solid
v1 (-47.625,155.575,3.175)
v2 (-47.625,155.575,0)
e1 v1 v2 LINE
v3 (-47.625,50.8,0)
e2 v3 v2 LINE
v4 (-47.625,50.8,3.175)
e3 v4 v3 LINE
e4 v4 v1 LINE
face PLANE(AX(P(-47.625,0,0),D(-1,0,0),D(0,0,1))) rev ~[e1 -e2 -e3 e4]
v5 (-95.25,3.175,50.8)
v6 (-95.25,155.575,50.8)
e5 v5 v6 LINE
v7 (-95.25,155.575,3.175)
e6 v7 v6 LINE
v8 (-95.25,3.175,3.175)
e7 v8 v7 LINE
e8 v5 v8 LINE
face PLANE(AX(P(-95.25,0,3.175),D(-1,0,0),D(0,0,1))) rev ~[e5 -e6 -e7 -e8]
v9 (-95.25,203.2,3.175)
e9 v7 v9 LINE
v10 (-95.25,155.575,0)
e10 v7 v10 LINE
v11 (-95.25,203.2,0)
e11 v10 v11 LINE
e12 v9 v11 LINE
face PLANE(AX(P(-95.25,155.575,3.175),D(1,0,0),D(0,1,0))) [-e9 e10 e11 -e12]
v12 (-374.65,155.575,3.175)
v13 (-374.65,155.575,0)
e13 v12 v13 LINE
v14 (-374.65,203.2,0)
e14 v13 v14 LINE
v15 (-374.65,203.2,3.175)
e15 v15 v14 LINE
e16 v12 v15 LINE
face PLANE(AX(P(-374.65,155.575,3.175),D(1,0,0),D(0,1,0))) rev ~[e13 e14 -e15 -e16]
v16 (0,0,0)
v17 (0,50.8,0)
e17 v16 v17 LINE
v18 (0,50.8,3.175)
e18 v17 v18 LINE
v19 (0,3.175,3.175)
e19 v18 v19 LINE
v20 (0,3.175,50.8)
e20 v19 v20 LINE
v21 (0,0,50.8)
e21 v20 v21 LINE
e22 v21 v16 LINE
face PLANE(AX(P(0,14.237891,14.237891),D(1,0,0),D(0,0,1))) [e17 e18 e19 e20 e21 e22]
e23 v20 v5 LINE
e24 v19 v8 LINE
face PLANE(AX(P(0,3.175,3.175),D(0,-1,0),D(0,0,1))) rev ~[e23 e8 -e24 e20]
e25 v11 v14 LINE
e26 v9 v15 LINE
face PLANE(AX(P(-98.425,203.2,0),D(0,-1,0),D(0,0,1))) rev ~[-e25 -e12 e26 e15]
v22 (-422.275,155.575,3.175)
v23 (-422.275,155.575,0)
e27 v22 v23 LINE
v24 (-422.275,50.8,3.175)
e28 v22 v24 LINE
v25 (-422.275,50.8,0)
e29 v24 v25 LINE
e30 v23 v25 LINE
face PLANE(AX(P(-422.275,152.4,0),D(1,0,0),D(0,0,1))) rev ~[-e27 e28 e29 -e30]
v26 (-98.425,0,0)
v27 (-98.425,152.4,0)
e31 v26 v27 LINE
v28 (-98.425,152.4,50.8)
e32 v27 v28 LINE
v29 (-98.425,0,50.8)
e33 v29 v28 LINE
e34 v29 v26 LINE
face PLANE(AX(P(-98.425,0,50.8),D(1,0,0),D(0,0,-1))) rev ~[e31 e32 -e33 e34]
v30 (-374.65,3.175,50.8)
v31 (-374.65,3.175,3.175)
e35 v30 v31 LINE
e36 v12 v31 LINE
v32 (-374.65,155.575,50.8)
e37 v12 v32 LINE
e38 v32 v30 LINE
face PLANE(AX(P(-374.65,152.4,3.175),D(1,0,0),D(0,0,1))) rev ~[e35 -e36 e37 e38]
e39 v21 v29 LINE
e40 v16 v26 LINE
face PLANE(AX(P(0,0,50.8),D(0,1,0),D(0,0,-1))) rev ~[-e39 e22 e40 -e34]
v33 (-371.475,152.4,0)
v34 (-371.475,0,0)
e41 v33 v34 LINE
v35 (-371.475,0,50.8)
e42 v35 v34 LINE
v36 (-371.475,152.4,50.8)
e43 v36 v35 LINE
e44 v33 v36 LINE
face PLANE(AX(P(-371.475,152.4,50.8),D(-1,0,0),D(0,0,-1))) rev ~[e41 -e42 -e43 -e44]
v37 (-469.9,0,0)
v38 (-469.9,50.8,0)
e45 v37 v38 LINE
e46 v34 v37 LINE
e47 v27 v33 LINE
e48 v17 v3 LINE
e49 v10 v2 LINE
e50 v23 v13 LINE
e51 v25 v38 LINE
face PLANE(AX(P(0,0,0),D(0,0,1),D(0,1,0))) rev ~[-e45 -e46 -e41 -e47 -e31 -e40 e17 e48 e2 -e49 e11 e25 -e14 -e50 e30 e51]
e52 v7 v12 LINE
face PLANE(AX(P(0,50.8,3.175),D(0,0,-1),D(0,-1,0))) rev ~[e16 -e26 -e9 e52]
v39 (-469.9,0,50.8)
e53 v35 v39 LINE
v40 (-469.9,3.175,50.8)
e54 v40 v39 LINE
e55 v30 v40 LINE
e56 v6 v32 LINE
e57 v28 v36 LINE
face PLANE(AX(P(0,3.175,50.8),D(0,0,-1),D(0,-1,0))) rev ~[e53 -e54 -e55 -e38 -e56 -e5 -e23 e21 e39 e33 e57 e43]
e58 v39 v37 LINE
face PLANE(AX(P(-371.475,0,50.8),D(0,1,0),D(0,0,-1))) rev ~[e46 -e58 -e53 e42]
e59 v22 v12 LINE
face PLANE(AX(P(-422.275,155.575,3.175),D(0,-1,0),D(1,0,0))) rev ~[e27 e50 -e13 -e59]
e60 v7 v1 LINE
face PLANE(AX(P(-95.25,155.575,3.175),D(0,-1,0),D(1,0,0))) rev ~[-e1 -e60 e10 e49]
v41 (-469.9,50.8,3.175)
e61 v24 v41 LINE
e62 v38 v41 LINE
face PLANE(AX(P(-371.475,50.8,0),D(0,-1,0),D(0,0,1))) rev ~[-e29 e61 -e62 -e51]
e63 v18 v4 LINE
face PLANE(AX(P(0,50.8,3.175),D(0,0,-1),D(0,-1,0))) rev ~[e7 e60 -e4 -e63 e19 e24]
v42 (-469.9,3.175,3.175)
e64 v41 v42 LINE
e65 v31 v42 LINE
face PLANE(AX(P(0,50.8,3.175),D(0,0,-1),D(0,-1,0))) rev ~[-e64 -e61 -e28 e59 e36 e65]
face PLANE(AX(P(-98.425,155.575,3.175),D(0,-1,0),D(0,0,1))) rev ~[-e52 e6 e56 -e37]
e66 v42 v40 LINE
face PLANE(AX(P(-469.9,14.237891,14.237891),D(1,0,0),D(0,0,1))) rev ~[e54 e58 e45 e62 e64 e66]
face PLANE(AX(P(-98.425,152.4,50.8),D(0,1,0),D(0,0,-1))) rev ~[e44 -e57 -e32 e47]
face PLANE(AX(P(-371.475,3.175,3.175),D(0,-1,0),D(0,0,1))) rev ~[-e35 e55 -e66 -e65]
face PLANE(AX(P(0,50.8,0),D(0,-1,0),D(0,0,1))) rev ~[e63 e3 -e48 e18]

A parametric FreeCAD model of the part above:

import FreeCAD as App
import Part
import Sketcher
Q = App.Units.Quantity

doc = App.newDocument("Part")
body = doc.addObject("PartDesign::Body", "Body")

# Sketch on YZ plane
sketch1 = body.newObject("Sketcher::SketchObject", "Sketch")
sketch1.AttachmentSupport = (doc.getObject("YZ_Plane"), [""])
sketch1.MapMode = "FlatFace"
sketch1.addGeometry([
    Part.LineSegment(App.Vector(0, 50.8, 0), App.Vector(0, 0, 0)),  # 0
    Part.LineSegment(App.Vector(0, 0, 0), App.Vector(50.8, 0, 0)),  # 1
    Part.LineSegment(App.Vector(50.8, 0, 0), App.Vector(50.8, 3.2, 0)),  # 2
    Part.LineSegment(App.Vector(50.8, 3.2, 0), App.Vector(3.2, 3.2, 0)),  # 3
    Part.LineSegment(App.Vector(3.2, 3.2, 0), App.Vector(3.2, 50.8, 0)),  # 4
    Part.LineSegment(App.Vector(3.2, 50.8, 0), App.Vector(0, 50.8, 0)),  # 5
], False)
sketch1.addConstraint([
    Sketcher.Constraint("Coincident", 0, 2, 1, 1),
    Sketcher.Constraint("Coincident", 1, 2, 2, 1),
    Sketcher.Constraint("Coincident", 2, 2, 3, 1),
    Sketcher.Constraint("Coincident", 3, 2, 4, 1),
    Sketcher.Constraint("Coincident", 4, 2, 5, 1),
    Sketcher.Constraint("Coincident", 5, 2, 0, 1),
    Sketcher.Constraint("Vertical", 0),
    Sketcher.Constraint("Horizontal", 1),
    Sketcher.Constraint("Vertical", 2),
    Sketcher.Constraint("Horizontal", 3),
    Sketcher.Constraint("Vertical", 4),
    Sketcher.Constraint("Horizontal", 5),
    Sketcher.Constraint("Coincident", 0, 2, -1, 1),
    Sketcher.Constraint("Equal", 1, 0),
    Sketcher.Constraint("Equal", 5, 2),
    Sketcher.Constraint("DistanceX", 1, 1, 1, 2, Q("2 in")),
    Sketcher.Constraint("DistanceX", 3, 2, 3, 1, Q("1.875 in")),
])

# Sketch on XY plane
sketch2 = body.newObject("Sketcher::SketchObject", "Sketch001")
sketch2.AttachmentSupport = (doc.getObject("XY_Plane"), [""])
sketch2.MapMode = "FlatFace"
sketch2.addGeometry([
    Part.LineSegment(App.Vector(0, 0, 0), App.Vector(-98, 0, 0)),  # 0
    Part.LineSegment(App.Vector(-98, 0, 0), App.Vector(-98, 152, 0)),  # 1
    Part.LineSegment(App.Vector(-98, 152, 0), App.Vector(-371, 152, 0)),  # 2
    Part.LineSegment(App.Vector(-371, 152, 0), App.Vector(-371, 0, 0)),  # 3
    Part.LineSegment(App.Vector(-371, 0, 0), App.Vector(-470, 0, 0)),  # 4
], False)
sketch2.addConstraint([
    Sketcher.Constraint("Coincident", 0, 2, 1, 1),
    Sketcher.Constraint("Coincident", 1, 2, 2, 1),
    Sketcher.Constraint("Coincident", 2, 2, 3, 1),
    Sketcher.Constraint("Coincident", 3, 2, 4, 1),
    Sketcher.Constraint("Horizontal", 0),
    Sketcher.Constraint("Vertical", 1),
    Sketcher.Constraint("Horizontal", 2),
    Sketcher.Constraint("Vertical", 3),
    Sketcher.Constraint("Horizontal", 4),
    Sketcher.Constraint("Coincident", 0, 1, -1, 1),
    Sketcher.Constraint("PointOnObject", 3, 2, -1),
    Sketcher.Constraint("Equal", 0, 4),
    Sketcher.Constraint("DistanceY", 1, 1, 1, 2, Q("6 in")),
    Sketcher.Constraint("DistanceX", 2, 2, 2, 1, Q("10.75 in")),
    Sketcher.Constraint("DistanceX", 4, 2, -1, 1, Q("18.5 in")),
])
doc.recompute()

additivepipe = body.newObject("PartDesign::AdditivePipe", "AdditivePipe")
additivepipe.Profile = sketch1
additivepipe.Spine = (sketch2, ["Edge1", "Edge2", "Edge3", "Edge4", "Edge5"])
additivepipe.Transition = "Right corner"

# Sketch on XY plane
sketch3 = body.newObject("Sketcher::SketchObject", "Sketch002")
sketch3.AttachmentSupport = (doc.getObject("XY_Plane"), [""])
sketch3.MapMode = "FlatFace"
sketch3.AttachmentOffset = App.Placement(App.Vector(0, 0, 0.125 * 25.4), App.Rotation())
sketch3.addGeometry([
    Part.LineSegment(App.Vector(-422, 203, 0), App.Vector(-422, 156, 0)),  # 0
    Part.LineSegment(App.Vector(-422, 156, 0), App.Vector(-375, 156, 0)),  # 1
    Part.LineSegment(App.Vector(-375, 156, 0), App.Vector(-375, 203, 0)),  # 2
    Part.LineSegment(App.Vector(-375, 203, 0), App.Vector(-422, 203, 0)),  # 3
    Part.LineSegment(App.Vector(-95, 203, 0), App.Vector(-95, 156, 0)),  # 4
    Part.LineSegment(App.Vector(-95, 156, 0), App.Vector(-48, 156, 0)),  # 5
    Part.LineSegment(App.Vector(-48, 156, 0), App.Vector(-48, 203, 0)),  # 6
    Part.LineSegment(App.Vector(-48, 203, 0), App.Vector(-95, 203, 0)),  # 7
], False)
sketch3.addConstraint([
    Sketcher.Constraint("Coincident", 0, 2, 1, 1),
    Sketcher.Constraint("Coincident", 1, 2, 2, 1),
    Sketcher.Constraint("Coincident", 2, 2, 3, 1),
    Sketcher.Constraint("Coincident", 3, 2, 0, 1),
    Sketcher.Constraint("Coincident", 4, 2, 5, 1),
    Sketcher.Constraint("Coincident", 5, 2, 6, 1),
    Sketcher.Constraint("Coincident", 6, 2, 7, 1),
    Sketcher.Constraint("Coincident", 7, 2, 4, 1),
    Sketcher.Constraint("Vertical", 0),
    Sketcher.Constraint("Horizontal", 1),
    Sketcher.Constraint("Vertical", 2),
    Sketcher.Constraint("Horizontal", 3),
    Sketcher.Constraint("Vertical", 4),
    Sketcher.Constraint("Horizontal", 5),
    Sketcher.Constraint("Vertical", 6),
    Sketcher.Constraint("Horizontal", 7),
    Sketcher.Constraint("Horizontal", 1, 2, 4, 2),
    Sketcher.Constraint("Horizontal", 3, 2, 6, 2),
    Sketcher.Constraint("Equal", 3, 5),
    Sketcher.Constraint("Equal", 7, 0),
    Sketcher.Constraint("DistanceY", -1, 1, 2, 2, Q("8 in")),
    Sketcher.Constraint("DistanceX", 1, 2, 4, 2, Q("11 in")),
    Sketcher.Constraint("DistanceX", 1, 1, 1, 2, Q("1.875 in")),
    Sketcher.Constraint("DistanceX", 1, 2, -1, 1, Q("14.75 in")),
])
pocket1 = body.newObject("PartDesign::Pocket", "Pocket")
pocket1.Profile = sketch3
pocket1.Length = Q("1 in")

doc.recompute()
